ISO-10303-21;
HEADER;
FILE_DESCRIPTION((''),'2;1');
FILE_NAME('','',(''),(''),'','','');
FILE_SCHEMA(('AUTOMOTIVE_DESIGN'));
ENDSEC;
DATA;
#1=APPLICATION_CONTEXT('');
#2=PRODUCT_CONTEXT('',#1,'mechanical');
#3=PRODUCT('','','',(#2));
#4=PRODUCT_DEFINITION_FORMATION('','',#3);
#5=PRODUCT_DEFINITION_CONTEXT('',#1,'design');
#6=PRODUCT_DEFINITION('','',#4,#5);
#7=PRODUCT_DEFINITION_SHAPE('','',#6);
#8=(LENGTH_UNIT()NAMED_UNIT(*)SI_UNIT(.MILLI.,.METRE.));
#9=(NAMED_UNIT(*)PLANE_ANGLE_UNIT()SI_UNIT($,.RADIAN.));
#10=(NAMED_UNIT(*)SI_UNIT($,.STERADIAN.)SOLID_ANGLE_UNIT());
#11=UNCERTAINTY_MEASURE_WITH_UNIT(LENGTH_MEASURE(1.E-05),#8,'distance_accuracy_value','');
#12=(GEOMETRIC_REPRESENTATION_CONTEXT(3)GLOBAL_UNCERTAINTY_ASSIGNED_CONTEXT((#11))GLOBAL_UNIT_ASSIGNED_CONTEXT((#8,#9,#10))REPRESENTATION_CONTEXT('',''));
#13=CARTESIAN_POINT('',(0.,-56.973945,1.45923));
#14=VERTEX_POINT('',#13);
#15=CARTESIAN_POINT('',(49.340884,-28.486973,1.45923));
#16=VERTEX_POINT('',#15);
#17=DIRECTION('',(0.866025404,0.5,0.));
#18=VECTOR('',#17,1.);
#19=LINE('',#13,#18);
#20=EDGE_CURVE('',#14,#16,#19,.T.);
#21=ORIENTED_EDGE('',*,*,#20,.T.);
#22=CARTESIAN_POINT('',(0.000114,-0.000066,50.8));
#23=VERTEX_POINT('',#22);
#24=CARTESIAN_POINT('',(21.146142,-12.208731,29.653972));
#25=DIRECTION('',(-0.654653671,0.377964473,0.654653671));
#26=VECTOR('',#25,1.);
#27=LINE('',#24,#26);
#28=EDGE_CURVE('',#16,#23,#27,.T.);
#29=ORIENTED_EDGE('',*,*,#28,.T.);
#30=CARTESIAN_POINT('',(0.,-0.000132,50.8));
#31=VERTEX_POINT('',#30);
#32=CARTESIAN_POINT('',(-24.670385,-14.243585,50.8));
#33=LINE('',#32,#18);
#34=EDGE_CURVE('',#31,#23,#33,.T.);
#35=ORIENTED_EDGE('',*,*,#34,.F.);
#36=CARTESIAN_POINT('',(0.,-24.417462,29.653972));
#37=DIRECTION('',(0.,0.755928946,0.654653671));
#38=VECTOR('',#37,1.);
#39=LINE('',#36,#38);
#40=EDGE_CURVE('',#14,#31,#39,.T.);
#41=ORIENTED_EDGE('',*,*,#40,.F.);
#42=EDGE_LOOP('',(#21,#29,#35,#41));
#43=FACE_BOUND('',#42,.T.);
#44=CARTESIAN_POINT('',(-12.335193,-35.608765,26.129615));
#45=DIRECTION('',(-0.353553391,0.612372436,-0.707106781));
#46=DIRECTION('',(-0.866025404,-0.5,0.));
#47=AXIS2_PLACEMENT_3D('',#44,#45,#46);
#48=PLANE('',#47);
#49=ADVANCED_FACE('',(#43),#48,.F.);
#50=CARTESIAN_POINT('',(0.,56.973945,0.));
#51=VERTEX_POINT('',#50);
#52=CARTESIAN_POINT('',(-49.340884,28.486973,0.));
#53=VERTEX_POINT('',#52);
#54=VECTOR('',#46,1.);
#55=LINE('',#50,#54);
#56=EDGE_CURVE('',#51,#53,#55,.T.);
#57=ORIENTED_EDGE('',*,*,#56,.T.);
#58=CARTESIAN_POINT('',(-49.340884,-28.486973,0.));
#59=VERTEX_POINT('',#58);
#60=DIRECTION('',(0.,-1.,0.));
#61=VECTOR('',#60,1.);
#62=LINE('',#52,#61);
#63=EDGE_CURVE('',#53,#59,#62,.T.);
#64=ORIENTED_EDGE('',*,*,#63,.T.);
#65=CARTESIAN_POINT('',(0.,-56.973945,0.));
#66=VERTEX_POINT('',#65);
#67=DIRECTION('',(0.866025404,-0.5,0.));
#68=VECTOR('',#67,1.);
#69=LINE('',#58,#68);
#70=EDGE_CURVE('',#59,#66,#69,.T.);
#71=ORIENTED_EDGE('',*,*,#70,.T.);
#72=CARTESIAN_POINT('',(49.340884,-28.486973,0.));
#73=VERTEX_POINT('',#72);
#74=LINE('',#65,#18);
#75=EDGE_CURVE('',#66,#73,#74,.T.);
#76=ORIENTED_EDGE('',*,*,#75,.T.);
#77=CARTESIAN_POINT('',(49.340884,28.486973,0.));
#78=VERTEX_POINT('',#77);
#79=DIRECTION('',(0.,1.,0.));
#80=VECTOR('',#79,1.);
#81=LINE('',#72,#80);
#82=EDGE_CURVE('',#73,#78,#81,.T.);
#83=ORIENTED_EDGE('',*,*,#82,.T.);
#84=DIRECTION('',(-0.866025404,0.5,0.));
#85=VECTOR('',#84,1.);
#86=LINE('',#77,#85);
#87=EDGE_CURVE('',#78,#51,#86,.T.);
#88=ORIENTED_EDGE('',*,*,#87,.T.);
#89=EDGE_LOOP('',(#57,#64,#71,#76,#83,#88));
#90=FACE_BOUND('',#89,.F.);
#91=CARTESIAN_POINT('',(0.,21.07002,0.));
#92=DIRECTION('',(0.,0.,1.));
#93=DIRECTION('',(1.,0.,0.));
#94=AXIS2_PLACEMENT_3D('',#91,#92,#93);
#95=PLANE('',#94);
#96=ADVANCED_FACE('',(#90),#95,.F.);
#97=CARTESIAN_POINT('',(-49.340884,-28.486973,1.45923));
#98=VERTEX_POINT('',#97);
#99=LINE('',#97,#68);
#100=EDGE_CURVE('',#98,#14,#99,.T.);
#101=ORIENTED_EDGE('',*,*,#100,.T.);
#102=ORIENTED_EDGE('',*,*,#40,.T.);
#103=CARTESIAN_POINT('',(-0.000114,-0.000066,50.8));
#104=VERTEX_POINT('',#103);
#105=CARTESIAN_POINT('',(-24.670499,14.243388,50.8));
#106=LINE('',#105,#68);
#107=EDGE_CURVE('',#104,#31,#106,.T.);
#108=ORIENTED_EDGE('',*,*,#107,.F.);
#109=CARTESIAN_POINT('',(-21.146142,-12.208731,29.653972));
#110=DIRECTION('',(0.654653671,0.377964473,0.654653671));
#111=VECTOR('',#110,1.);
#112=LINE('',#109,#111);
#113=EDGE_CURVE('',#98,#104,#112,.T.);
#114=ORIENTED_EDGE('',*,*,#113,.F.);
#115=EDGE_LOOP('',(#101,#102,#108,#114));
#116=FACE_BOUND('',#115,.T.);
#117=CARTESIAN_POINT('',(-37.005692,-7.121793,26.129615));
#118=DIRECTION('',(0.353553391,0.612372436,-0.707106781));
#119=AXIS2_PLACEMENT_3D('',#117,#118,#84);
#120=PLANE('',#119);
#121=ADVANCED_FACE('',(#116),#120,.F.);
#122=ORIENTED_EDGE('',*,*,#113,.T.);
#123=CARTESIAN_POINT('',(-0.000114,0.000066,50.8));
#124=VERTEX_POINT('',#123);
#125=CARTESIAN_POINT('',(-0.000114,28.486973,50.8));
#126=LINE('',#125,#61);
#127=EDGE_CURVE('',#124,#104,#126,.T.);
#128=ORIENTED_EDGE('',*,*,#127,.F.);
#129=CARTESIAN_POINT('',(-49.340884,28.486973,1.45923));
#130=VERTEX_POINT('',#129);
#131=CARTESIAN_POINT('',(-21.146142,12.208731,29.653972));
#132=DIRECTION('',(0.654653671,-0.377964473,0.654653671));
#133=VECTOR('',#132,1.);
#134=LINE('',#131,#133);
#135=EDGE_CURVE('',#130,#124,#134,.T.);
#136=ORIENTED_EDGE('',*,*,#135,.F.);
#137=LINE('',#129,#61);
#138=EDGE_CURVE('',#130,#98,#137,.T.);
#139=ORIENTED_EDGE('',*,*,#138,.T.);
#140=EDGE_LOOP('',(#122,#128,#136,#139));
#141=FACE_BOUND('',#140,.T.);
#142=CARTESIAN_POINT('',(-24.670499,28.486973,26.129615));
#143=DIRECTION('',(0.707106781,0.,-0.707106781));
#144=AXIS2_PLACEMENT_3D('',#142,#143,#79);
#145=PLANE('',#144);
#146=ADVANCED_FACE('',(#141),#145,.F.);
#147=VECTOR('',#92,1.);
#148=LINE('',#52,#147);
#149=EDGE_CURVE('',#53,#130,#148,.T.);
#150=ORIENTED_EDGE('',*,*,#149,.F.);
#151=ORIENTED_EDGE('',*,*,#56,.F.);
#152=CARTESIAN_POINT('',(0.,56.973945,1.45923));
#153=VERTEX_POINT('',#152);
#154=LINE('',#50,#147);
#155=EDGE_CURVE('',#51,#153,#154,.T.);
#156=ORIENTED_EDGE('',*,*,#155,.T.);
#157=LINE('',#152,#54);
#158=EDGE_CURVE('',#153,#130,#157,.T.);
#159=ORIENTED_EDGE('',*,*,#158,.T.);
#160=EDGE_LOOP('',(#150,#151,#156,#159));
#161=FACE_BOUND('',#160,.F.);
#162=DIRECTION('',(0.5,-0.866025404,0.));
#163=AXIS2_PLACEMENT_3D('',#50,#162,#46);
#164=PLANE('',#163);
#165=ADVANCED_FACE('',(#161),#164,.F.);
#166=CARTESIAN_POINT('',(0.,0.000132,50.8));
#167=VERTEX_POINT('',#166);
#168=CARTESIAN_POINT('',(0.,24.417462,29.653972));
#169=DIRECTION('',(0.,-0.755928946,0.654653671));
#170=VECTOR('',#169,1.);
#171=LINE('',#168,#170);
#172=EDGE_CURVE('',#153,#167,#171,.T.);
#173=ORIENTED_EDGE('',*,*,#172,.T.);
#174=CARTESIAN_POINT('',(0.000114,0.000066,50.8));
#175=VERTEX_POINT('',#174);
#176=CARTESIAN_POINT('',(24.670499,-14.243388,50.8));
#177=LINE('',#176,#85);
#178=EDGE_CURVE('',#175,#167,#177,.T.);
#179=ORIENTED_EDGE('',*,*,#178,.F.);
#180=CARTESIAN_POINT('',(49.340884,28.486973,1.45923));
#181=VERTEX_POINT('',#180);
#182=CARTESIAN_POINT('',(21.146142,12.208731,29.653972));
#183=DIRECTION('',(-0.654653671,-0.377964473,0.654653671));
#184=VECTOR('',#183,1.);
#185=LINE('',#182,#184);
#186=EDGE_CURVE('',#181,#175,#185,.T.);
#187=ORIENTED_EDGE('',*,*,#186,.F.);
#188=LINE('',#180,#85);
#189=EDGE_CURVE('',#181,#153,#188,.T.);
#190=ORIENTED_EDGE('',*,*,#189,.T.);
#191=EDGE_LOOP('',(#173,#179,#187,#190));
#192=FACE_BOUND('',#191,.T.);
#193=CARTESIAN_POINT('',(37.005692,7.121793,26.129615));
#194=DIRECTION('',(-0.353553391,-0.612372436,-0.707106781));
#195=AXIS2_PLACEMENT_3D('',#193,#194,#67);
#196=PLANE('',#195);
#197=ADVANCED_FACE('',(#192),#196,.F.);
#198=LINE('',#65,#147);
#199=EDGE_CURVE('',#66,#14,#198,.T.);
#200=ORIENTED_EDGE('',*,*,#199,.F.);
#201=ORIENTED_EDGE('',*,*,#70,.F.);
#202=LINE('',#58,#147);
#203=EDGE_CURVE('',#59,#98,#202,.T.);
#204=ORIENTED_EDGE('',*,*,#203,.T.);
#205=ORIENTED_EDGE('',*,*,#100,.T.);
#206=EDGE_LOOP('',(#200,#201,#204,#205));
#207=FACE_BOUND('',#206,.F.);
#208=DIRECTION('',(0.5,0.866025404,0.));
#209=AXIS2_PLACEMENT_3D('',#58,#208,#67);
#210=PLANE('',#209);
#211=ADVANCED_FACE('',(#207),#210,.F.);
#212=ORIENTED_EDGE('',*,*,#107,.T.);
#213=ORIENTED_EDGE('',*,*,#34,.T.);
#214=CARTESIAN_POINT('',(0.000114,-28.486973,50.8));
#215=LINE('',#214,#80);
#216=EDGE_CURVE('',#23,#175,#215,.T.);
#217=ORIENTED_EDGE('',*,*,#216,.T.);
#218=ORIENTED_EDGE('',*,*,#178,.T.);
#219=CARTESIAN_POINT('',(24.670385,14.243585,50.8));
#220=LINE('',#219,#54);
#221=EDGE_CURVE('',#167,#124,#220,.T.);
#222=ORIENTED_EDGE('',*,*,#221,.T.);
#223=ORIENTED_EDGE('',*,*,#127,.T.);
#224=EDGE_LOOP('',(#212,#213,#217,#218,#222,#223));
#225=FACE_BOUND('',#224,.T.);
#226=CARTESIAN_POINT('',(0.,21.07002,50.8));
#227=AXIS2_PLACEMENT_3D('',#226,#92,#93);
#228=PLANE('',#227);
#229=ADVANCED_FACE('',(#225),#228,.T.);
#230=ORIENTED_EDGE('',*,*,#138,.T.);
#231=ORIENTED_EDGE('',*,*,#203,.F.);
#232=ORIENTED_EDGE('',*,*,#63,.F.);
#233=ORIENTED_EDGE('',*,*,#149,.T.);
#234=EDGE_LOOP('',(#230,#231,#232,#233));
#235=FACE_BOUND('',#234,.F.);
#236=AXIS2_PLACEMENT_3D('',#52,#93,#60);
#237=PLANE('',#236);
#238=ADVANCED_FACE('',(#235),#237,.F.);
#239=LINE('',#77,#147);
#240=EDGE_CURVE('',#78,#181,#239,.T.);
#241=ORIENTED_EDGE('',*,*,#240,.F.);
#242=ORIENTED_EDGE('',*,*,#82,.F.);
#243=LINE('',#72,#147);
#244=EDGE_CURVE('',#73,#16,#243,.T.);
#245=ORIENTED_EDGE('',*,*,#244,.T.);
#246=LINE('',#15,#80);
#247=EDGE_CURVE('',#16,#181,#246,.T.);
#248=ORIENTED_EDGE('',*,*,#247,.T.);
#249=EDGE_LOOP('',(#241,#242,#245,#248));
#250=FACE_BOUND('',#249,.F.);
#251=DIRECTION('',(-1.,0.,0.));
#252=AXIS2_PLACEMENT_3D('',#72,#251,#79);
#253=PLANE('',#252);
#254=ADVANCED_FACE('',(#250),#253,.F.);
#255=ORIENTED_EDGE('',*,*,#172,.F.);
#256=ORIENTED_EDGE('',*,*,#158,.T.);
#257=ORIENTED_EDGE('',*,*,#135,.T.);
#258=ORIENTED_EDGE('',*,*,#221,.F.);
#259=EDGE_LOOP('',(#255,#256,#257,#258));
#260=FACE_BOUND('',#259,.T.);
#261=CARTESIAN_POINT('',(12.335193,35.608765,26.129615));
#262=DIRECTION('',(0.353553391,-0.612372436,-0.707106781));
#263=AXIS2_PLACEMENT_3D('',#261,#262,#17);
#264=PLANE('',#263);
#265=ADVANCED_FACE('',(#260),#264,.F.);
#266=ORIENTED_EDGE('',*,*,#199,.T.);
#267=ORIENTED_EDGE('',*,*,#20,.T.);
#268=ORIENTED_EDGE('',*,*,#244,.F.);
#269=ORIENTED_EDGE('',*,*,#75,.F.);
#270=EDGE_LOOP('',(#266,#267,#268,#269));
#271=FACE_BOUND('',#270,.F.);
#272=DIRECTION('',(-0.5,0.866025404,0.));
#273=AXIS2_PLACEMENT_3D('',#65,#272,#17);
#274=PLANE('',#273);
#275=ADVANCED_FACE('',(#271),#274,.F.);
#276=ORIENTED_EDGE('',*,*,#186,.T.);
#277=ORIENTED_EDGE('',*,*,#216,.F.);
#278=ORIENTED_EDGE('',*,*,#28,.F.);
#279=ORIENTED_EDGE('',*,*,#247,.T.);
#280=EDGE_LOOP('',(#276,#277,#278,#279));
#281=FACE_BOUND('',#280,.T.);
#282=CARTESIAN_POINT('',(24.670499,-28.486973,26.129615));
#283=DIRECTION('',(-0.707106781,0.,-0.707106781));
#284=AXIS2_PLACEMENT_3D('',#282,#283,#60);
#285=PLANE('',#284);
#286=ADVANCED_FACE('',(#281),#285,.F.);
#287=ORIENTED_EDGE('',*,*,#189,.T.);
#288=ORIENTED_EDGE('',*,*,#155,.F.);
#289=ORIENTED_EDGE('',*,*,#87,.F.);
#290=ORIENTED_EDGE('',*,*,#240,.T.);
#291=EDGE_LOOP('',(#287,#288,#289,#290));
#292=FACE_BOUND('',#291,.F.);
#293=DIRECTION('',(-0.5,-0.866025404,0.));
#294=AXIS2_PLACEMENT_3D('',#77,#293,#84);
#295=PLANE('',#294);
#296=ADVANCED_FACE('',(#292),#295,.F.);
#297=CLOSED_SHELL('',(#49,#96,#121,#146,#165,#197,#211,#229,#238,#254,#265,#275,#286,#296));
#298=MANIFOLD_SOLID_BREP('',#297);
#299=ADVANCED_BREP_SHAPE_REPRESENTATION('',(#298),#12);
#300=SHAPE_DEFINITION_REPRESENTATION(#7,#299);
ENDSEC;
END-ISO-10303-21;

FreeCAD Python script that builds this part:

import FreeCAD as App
import Part
import Sketcher
from FreeCAD import Vector
Q = App.Units.Quantity


def edges_at(feature, points):
    """Names of the edges that pass closest to the given points."""
    edges = feature.Shape.Edges
    near = lambda p: min(range(len(edges)), key=lambda i: edges[i].distToShape(Part.Vertex(*p))[0])
    return sorted({f"Edge{near(p) + 1}" for p in points})


def add_polygon(sketch, points):
    """Adds a closed chain of lines whose ends are joined by coincident constraints."""
    first, n = sketch.GeometryCount, len(points)
    for a, b in zip(points, points[1:] + points[:1]):
        sketch.addGeometry(Part.LineSegment(App.Vector(*a, 0), App.Vector(*b, 0)), False)
    for i in range(n):
        sketch.addConstraint(Sketcher.Constraint("Coincident", first + i, 2, first + (i + 1) % n, 1))

doc = App.newDocument("Part")
body = doc.addObject("PartDesign::Body", "Body")

sketch1 = body.newObject("Sketcher::SketchObject", "Sketch")
sketch1.AttachmentSupport = (doc.getObject("XY_Plane"), [""])
sketch1.MapMode = "FlatFace"
add_polygon(sketch1, [(49, 28), (0, 57), (-49, 28), (-49, -28), (0, -57), (49, -28)])
sketch1.addConstraint([
    Sketcher.Constraint("Vertical", 2),
    Sketcher.Constraint("Vertical", 5),
    Sketcher.Constraint("Symmetric", 0, 2, 3, 2, -1, 1),
    Sketcher.Constraint("Symmetric", 1, 2, 4, 2, -1, 1),
    Sketcher.Constraint("PointOnObject", 0, 2, -2),
    Sketcher.Constraint("Parallel", 0, 3),
    Sketcher.Constraint("Horizontal", 2, 2, 4, 2),
    Sketcher.Constraint("Angle", 0, Q("150 deg")),
    Sketcher.Constraint("DistanceY", 2, 2, 2, 1, 56.973945),
    Sketcher.Constraint("DistanceY", 2, 2, 0, 2, 85.460918),
])
pad1 = body.newObject("PartDesign::Pad", "Pad")
pad1.Profile = sketch1
pad1.Length = Q("2 in")
doc.recompute()

chamfer = body.newObject("PartDesign::Chamfer", "Chamfer")
chamfer.Base = (pad1, edges_at(pad1, [
    (24.67, -42.73, 50.8),
    (49.341, 0, 50.8),
    (24.67, 42.73, 50.8),
    (-24.67, 42.73, 50.8),
    (-49.341, 0, 50.8),
    (-24.67, -42.73, 50.8),
]))
chamfer.Size = 49.34077

doc.recompute()
